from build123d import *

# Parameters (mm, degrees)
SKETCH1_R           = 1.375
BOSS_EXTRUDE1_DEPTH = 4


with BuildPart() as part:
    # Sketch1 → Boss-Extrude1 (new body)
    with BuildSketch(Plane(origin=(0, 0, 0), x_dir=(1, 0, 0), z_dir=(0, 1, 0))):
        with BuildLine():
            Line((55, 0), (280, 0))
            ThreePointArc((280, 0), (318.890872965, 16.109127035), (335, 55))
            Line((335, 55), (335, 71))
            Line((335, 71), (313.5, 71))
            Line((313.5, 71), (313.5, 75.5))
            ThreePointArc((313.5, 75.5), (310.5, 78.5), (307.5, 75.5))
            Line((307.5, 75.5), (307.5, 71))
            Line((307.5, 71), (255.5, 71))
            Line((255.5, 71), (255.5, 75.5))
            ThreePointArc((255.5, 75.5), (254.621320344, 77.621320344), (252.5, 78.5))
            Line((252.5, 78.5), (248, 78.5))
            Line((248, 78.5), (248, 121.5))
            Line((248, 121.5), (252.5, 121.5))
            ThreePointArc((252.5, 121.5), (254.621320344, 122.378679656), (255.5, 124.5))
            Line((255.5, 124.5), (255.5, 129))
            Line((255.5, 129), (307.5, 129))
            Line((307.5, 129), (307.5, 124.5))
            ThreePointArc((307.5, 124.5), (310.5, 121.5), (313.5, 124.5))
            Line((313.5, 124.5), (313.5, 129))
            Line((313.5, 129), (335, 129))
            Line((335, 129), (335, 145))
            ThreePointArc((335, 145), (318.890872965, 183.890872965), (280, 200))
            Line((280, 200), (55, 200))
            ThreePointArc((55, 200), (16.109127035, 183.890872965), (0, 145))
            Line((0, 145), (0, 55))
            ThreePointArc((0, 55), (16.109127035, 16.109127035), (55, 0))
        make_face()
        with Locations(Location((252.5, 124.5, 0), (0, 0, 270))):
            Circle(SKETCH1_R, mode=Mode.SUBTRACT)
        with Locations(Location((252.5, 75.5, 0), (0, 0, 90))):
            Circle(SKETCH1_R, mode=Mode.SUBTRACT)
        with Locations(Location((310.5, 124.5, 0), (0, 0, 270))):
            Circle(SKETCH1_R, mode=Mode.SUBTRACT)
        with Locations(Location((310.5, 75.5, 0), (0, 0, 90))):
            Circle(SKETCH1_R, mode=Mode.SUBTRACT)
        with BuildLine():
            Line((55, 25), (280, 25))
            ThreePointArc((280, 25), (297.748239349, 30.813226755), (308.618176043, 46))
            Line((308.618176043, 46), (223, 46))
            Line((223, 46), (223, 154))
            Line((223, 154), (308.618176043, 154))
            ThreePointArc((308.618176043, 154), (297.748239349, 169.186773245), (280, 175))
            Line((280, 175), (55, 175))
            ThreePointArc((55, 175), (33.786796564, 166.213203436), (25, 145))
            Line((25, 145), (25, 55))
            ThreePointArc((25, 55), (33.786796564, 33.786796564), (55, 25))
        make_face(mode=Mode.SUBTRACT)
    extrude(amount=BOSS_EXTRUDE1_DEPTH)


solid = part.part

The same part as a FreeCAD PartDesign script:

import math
import FreeCAD as App
import Part
import Sketcher
Q = App.Units.Quantity

doc = App.newDocument("Part")
body = doc.addObject("PartDesign::Body", "Body")

# Sketch on XZ plane
sketch1 = body.newObject("Sketcher::SketchObject", "Sketch")
sketch1.AttachmentSupport = (doc.getObject("XZ_Plane"), [""])
sketch1.MapMode = "FlatFace"
sketch1.addGeometry(Part.LineSegment(App.Vector(55, 0, 0), App.Vector(280, 0, 0)), False)
sketch1.addGeometry(Part.ArcOfCircle(Part.Circle(App.Vector(280, -55, 0), App.Vector(0, 0, 1), 55), math.radians(0), math.radians(90)), False)
sketch1.addGeometry(Part.LineSegment(App.Vector(335, -55, 0), App.Vector(335, -71, 0)), False)
sketch1.addGeometry(Part.LineSegment(App.Vector(335, -71, 0), App.Vector(313.5, -71, 0)), False)
sketch1.addGeometry(Part.LineSegment(App.Vector(313.5, -71, 0), App.Vector(313.5, -75.5, 0)), False)
sketch1.addGeometry(Part.ArcOfCircle(Part.Circle(App.Vector(310.5, -75.5, 0), App.Vector(0, 0, 1), 3), math.radians(180), math.radians(360)), False)
sketch1.addGeometry(Part.LineSegment(App.Vector(307.5, -75.5, 0), App.Vector(307.5, -71, 0)), False)
sketch1.addGeometry(Part.LineSegment(App.Vector(307.5, -71, 0), App.Vector(255.5, -71, 0)), False)
sketch1.addGeometry(Part.LineSegment(App.Vector(255.5, -71, 0), App.Vector(255.5, -75.5, 0)), False)
sketch1.addGeometry(Part.ArcOfCircle(Part.Circle(App.Vector(252.5, -75.5, 0), App.Vector(0, 0, 1), 3), math.radians(-90), math.radians(0)), False)
sketch1.addGeometry(Part.LineSegment(App.Vector(252.5, -78.5, 0), App.Vector(248, -78.5, 0)), False)
sketch1.addGeometry(Part.LineSegment(App.Vector(248, -78.5, 0), App.Vector(248, -121.5, 0)), False)
sketch1.addGeometry(Part.LineSegment(App.Vector(248, -121.5, 0), App.Vector(252.5, -121.5, 0)), False)
sketch1.addGeometry(Part.ArcOfCircle(Part.Circle(App.Vector(252.5, -124.5, 0), App.Vector(0, 0, 1), 3), math.radians(0), math.radians(90)), False)
sketch1.addGeometry(Part.LineSegment(App.Vector(255.5, -124.5, 0), App.Vector(255.5, -129, 0)), False)
sketch1.addGeometry(Part.LineSegment(App.Vector(255.5, -129, 0), App.Vector(307.5, -129, 0)), False)
sketch1.addGeometry(Part.LineSegment(App.Vector(307.5, -129, 0), App.Vector(307.5, -124.5, 0)), False)
sketch1.addGeometry(Part.ArcOfCircle(Part.Circle(App.Vector(310.5, -124.5, 0), App.Vector(0, 0, 1), 3), math.radians(0), math.radians(180)), False)
sketch1.addGeometry(Part.LineSegment(App.Vector(313.5, -124.5, 0), App.Vector(313.5, -129, 0)), False)
sketch1.addGeometry(Part.LineSegment(App.Vector(313.5, -129, 0), App.Vector(335, -129, 0)), False)
sketch1.addGeometry(Part.LineSegment(App.Vector(335, -129, 0), App.Vector(335, -145, 0)), False)
sketch1.addGeometry(Part.ArcOfCircle(Part.Circle(App.Vector(280, -145, 0), App.Vector(0, 0, 1), 55), math.radians(-90), math.radians(0)), False)
sketch1.addGeometry(Part.LineSegment(App.Vector(280, -200, 0), App.Vector(55, -200, 0)), False)
sketch1.addGeometry(Part.ArcOfCircle(Part.Circle(App.Vector(55, -145, 0), App.Vector(0, 0, 1), 55), math.radians(-180), math.radians(-90)), False)
sketch1.addGeometry(Part.LineSegment(App.Vector(0, -145, 0), App.Vector(0, -55, 0)), False)
sketch1.addGeometry(Part.ArcOfCircle(Part.Circle(App.Vector(55, -55, 0), App.Vector(0, 0, 1), 55), math.radians(90), math.radians(180)), False)
sketch1.addGeometry(Part.Circle(App.Vector(252.5, -75.5, 0), App.Vector(0, 0, 1), 1.4), False)
sketch1.addGeometry(Part.Circle(App.Vector(310.5, -75.5, 0), App.Vector(0, 0, 1), 1.4), False)
sketch1.addGeometry(Part.LineSegment(App.Vector(280, -25, 0), App.Vector(55, -25, 0)), False)
sketch1.addGeometry(Part.ArcOfCircle(Part.Circle(App.Vector(55, -55, 0), App.Vector(0, 0, 1), 30), math.radians(90), math.radians(180)), False)
sketch1.addGeometry(Part.LineSegment(App.Vector(25, -55, 0), App.Vector(25, -145, 0)), False)
sketch1.addGeometry(Part.ArcOfCircle(Part.Circle(App.Vector(55, -145, 0), App.Vector(0, 0, 1), 30), math.radians(180), math.radians(270)), False)
sketch1.addGeometry(Part.LineSegment(App.Vector(55, -175, 0), App.Vector(280, -175, 0)), False)
sketch1.addGeometry(Part.ArcOfCircle(Part.Circle(App.Vector(280, -145, 0), App.Vector(0, 0, 1), 30), math.radians(-90), math.radians(-17)), False)
sketch1.addGeometry(Part.LineSegment(App.Vector(308.6, -154, 0), App.Vector(223, -154, 0)), False)
sketch1.addGeometry(Part.LineSegment(App.Vector(223, -154, 0), App.Vector(223, -46, 0)), False)
sketch1.addGeometry(Part.LineSegment(App.Vector(223, -46, 0), App.Vector(308.6, -46, 0)), False)
sketch1.addGeometry(Part.ArcOfCircle(Part.Circle(App.Vector(280, -55, 0), App.Vector(0, 0, 1), 30), math.radians(17), math.radians(90)), False)
sketch1.addGeometry(Part.Circle(App.Vector(252.5, -124.5, 0), App.Vector(0, 0, 1), 1.4), False)
sketch1.addGeometry(Part.Circle(App.Vector(310.5, -124.5, 0), App.Vector(0, 0, 1), 1.4), False)
sketch1.addConstraint(Sketcher.Constraint("Tangent", 0, 2, 1, 2))
sketch1.addConstraint(Sketcher.Constraint("Tangent", 1, 1, 2, 1))
sketch1.addConstraint(Sketcher.Constraint("Coincident", 2, 2, 3, 1))
sketch1.addConstraint(Sketcher.Constraint("Coincident", 3, 2, 4, 1))
sketch1.addConstraint(Sketcher.Constraint("Tangent", 4, 2, 5, 2))
sketch1.addConstraint(Sketcher.Constraint("Tangent", 5, 1, 6, 1))
sketch1.addConstraint(Sketcher.Constraint("Coincident", 6, 2, 7, 1))
sketch1.addConstraint(Sketcher.Constraint("Coincident", 7, 2, 8, 1))
sketch1.addConstraint(Sketcher.Constraint("Tangent", 8, 2, 9, 2))
sketch1.addConstraint(Sketcher.Constraint("Tangent", 9, 1, 10, 1))
sketch1.addConstraint(Sketcher.Constraint("Coincident", 10, 2, 11, 1))
sketch1.addConstraint(Sketcher.Constraint("Coincident", 11, 2, 12, 1))
sketch1.addConstraint(Sketcher.Constraint("Tangent", 12, 2, 13, 2))
sketch1.addConstraint(Sketcher.Constraint("Tangent", 13, 1, 14, 1))
sketch1.addConstraint(Sketcher.Constraint("Coincident", 14, 2, 15, 1))
sketch1.addConstraint(Sketcher.Constraint("Coincident", 15, 2, 16, 1))
sketch1.addConstraint(Sketcher.Constraint("Tangent", 16, 2, 17, 2))
sketch1.addConstraint(Sketcher.Constraint("Tangent", 17, 1, 18, 1))
sketch1.addConstraint(Sketcher.Constraint("Coincident", 18, 2, 19, 1))
sketch1.addConstraint(Sketcher.Constraint("Coincident", 19, 2, 20, 1))
sketch1.addConstraint(Sketcher.Constraint("Tangent", 20, 2, 21, 2))
sketch1.addConstraint(Sketcher.Constraint("Tangent", 21, 1, 22, 1))
sketch1.addConstraint(Sketcher.Constraint("Tangent", 22, 2, 23, 2))
sketch1.addConstraint(Sketcher.Constraint("Tangent", 23, 1, 24, 1))
sketch1.addConstraint(Sketcher.Constraint("Tangent", 24, 2, 25, 2))
sketch1.addConstraint(Sketcher.Constraint("Tangent", 25, 1, 0, 1))
sketch1.addConstraint(Sketcher.Constraint("Tangent", 28, 2, 29, 1))
sketch1.addConstraint(Sketcher.Constraint("Tangent", 29, 2, 30, 1))
sketch1.addConstraint(Sketcher.Constraint("Tangent", 30, 2, 31, 1))
sketch1.addConstraint(Sketcher.Constraint("Tangent", 31, 2, 32, 1))
sketch1.addConstraint(Sketcher.Constraint("Tangent", 32, 2, 33, 1))
sketch1.addConstraint(Sketcher.Constraint("Coincident", 33, 2, 34, 1))
sketch1.addConstraint(Sketcher.Constraint("Coincident", 34, 2, 35, 1))
sketch1.addConstraint(Sketcher.Constraint("Coincident", 35, 2, 36, 1))
sketch1.addConstraint(Sketcher.Constraint("Coincident", 36, 2, 37, 1))
sketch1.addConstraint(Sketcher.Constraint("Tangent", 37, 2, 28, 1))
sketch1.addConstraint(Sketcher.Constraint("Horizontal", 0))
sketch1.addConstraint(Sketcher.Constraint("Vertical", 2))
sketch1.addConstraint(Sketcher.Constraint("Horizontal", 3))
sketch1.addConstraint(Sketcher.Constraint("Vertical", 4))
sketch1.addConstraint(Sketcher.Constraint("Vertical", 6))
sketch1.addConstraint(Sketcher.Constraint("Horizontal", 7))
sketch1.addConstraint(Sketcher.Constraint("Vertical", 8))
sketch1.addConstraint(Sketcher.Constraint("Horizontal", 10))
sketch1.addConstraint(Sketcher.Constraint("Vertical", 11))
sketch1.addConstraint(Sketcher.Constraint("Horizontal", 12))
sketch1.addConstraint(Sketcher.Constraint("Vertical", 14))
sketch1.addConstraint(Sketcher.Constraint("Horizontal", 15))
sketch1.addConstraint(Sketcher.Constraint("Vertical", 16))
sketch1.addConstraint(Sketcher.Constraint("Vertical", 18))
sketch1.addConstraint(Sketcher.Constraint("Horizontal", 19))
sketch1.addConstraint(Sketcher.Constraint("Vertical", 20))
sketch1.addConstraint(Sketcher.Constraint("Horizontal", 22))
sketch1.addConstraint(Sketcher.Constraint("Vertical", 24))
sketch1.addConstraint(Sketcher.Constraint("Horizontal", 28))
sketch1.addConstraint(Sketcher.Constraint("Vertical", 30))
sketch1.addConstraint(Sketcher.Constraint("Horizontal", 32))
sketch1.addConstraint(Sketcher.Constraint("Horizontal", 34))
sketch1.addConstraint(Sketcher.Constraint("Vertical", 35))
sketch1.addConstraint(Sketcher.Constraint("Horizontal", 36))
sketch1.addConstraint(Sketcher.Constraint("Coincident", 26, 3, 9, 3))
sketch1.addConstraint(Sketcher.Constraint("Coincident", 27, 3, 5, 3))
sketch1.addConstraint(Sketcher.Constraint("Coincident", 29, 3, 25, 3))
sketch1.addConstraint(Sketcher.Constraint("Coincident", 31, 3, 23, 3))
sketch1.addConstraint(Sketcher.Constraint("Coincident", 33, 3, 21, 3))
sketch1.addConstraint(Sketcher.Constraint("Coincident", 37, 3, 1, 3))
sketch1.addConstraint(Sketcher.Constraint("Coincident", 38, 3, 13, 3))
sketch1.addConstraint(Sketcher.Constraint("Coincident", 39, 3, 17, 3))
sketch1.addConstraint(Sketcher.Constraint("Equal", 5, 9))
sketch1.addConstraint(Sketcher.Constraint("Equal", 9, 13))
sketch1.addConstraint(Sketcher.Constraint("Equal", 13, 17))
sketch1.addConstraint(Sketcher.Constraint("Equal", 1, 21))
sketch1.addConstraint(Sketcher.Constraint("Equal", 21, 23))
sketch1.addConstraint(Sketcher.Constraint("Equal", 23, 25))
sketch1.addConstraint(Sketcher.Constraint("Equal", 26, 27))
sketch1.addConstraint(Sketcher.Constraint("Equal", 27, 38))
sketch1.addConstraint(Sketcher.Constraint("Equal", 38, 39))
sketch1.addConstraint(Sketcher.Constraint("PointOnObject", 0, 2, -1))
sketch1.addConstraint(Sketcher.Constraint("PointOnObject", 23, 1, -2))
sketch1.addConstraint(Sketcher.Constraint("Horizontal", 5, 3, 9, 3))
sketch1.addConstraint(Sketcher.Constraint("Horizontal", 13, 3, 17, 3))
sketch1.addConstraint(Sketcher.Constraint("Horizontal", 3, 2, 6, 2))
sketch1.addConstraint(Sketcher.Constraint("Horizontal", 15, 2, 18, 2))
sketch1.addConstraint(Sketcher.Constraint("Vertical", 9, 3, 13, 3))
sketch1.addConstraint(Sketcher.Constraint("Vertical", 5, 3, 17, 3))
sketch1.addConstraint(Sketcher.Constraint("Vertical", 1, 3, 21, 3))
sketch1.addConstraint(Sketcher.Constraint("Vertical", 33, 2, 36, 2))
sketch1.addConstraint(Sketcher.Constraint("Equal", 12, 4))
sketch1.addConstraint(Sketcher.Constraint("Equal", 8, 14))
sketch1.addConstraint(Sketcher.Constraint("Equal", 2, 20))
sketch1.addConstraint(Sketcher.Constraint("Radius", 1, Q("55 mm")))
sketch1.addConstraint(Sketcher.Constraint("Radius", 5, Q("3 mm")))
sketch1.addConstraint(Sketcher.Constraint("Radius", 29, Q("30 mm")))
sketch1.addConstraint(Sketcher.Constraint("Diameter", 26, Q("2.75 mm")))
sketch1.addConstraint(Sketcher.Constraint("DistanceX", 0, 1, 0, 2, Q("225 mm")))
sketch1.addConstraint(Sketcher.Constraint("DistanceX", 7, 2, 7, 1, Q("52 mm")))
sketch1.addConstraint(Sketcher.Constraint("DistanceY", 2, 2, 2, 1, Q("16 mm")))
sketch1.addConstraint(Sketcher.Constraint("DistanceY", 11, 2, 11, 1, Q("43 mm")))
sketch1.addConstraint(Sketcher.Constraint("DistanceY", 24, 1, 24, 2, Q("90 mm")))
sketch1.addConstraint(Sketcher.Constraint("DistanceY", 35, 1, 35, 2, Q("108 mm")))
sketch1.addConstraint(Sketcher.Constraint("DistanceX", 3, 2, 3, 1, Q("21.5 mm")))
sketch1.addConstraint(Sketcher.Constraint("DistanceX", -1, 1, 34, 2, Q("223 mm")))
pad1 = body.newObject("PartDesign::Pad", "Pad")
pad1.Profile = sketch1
pad1.Length = 4
pad1.Reversed = True

doc.recompute()
